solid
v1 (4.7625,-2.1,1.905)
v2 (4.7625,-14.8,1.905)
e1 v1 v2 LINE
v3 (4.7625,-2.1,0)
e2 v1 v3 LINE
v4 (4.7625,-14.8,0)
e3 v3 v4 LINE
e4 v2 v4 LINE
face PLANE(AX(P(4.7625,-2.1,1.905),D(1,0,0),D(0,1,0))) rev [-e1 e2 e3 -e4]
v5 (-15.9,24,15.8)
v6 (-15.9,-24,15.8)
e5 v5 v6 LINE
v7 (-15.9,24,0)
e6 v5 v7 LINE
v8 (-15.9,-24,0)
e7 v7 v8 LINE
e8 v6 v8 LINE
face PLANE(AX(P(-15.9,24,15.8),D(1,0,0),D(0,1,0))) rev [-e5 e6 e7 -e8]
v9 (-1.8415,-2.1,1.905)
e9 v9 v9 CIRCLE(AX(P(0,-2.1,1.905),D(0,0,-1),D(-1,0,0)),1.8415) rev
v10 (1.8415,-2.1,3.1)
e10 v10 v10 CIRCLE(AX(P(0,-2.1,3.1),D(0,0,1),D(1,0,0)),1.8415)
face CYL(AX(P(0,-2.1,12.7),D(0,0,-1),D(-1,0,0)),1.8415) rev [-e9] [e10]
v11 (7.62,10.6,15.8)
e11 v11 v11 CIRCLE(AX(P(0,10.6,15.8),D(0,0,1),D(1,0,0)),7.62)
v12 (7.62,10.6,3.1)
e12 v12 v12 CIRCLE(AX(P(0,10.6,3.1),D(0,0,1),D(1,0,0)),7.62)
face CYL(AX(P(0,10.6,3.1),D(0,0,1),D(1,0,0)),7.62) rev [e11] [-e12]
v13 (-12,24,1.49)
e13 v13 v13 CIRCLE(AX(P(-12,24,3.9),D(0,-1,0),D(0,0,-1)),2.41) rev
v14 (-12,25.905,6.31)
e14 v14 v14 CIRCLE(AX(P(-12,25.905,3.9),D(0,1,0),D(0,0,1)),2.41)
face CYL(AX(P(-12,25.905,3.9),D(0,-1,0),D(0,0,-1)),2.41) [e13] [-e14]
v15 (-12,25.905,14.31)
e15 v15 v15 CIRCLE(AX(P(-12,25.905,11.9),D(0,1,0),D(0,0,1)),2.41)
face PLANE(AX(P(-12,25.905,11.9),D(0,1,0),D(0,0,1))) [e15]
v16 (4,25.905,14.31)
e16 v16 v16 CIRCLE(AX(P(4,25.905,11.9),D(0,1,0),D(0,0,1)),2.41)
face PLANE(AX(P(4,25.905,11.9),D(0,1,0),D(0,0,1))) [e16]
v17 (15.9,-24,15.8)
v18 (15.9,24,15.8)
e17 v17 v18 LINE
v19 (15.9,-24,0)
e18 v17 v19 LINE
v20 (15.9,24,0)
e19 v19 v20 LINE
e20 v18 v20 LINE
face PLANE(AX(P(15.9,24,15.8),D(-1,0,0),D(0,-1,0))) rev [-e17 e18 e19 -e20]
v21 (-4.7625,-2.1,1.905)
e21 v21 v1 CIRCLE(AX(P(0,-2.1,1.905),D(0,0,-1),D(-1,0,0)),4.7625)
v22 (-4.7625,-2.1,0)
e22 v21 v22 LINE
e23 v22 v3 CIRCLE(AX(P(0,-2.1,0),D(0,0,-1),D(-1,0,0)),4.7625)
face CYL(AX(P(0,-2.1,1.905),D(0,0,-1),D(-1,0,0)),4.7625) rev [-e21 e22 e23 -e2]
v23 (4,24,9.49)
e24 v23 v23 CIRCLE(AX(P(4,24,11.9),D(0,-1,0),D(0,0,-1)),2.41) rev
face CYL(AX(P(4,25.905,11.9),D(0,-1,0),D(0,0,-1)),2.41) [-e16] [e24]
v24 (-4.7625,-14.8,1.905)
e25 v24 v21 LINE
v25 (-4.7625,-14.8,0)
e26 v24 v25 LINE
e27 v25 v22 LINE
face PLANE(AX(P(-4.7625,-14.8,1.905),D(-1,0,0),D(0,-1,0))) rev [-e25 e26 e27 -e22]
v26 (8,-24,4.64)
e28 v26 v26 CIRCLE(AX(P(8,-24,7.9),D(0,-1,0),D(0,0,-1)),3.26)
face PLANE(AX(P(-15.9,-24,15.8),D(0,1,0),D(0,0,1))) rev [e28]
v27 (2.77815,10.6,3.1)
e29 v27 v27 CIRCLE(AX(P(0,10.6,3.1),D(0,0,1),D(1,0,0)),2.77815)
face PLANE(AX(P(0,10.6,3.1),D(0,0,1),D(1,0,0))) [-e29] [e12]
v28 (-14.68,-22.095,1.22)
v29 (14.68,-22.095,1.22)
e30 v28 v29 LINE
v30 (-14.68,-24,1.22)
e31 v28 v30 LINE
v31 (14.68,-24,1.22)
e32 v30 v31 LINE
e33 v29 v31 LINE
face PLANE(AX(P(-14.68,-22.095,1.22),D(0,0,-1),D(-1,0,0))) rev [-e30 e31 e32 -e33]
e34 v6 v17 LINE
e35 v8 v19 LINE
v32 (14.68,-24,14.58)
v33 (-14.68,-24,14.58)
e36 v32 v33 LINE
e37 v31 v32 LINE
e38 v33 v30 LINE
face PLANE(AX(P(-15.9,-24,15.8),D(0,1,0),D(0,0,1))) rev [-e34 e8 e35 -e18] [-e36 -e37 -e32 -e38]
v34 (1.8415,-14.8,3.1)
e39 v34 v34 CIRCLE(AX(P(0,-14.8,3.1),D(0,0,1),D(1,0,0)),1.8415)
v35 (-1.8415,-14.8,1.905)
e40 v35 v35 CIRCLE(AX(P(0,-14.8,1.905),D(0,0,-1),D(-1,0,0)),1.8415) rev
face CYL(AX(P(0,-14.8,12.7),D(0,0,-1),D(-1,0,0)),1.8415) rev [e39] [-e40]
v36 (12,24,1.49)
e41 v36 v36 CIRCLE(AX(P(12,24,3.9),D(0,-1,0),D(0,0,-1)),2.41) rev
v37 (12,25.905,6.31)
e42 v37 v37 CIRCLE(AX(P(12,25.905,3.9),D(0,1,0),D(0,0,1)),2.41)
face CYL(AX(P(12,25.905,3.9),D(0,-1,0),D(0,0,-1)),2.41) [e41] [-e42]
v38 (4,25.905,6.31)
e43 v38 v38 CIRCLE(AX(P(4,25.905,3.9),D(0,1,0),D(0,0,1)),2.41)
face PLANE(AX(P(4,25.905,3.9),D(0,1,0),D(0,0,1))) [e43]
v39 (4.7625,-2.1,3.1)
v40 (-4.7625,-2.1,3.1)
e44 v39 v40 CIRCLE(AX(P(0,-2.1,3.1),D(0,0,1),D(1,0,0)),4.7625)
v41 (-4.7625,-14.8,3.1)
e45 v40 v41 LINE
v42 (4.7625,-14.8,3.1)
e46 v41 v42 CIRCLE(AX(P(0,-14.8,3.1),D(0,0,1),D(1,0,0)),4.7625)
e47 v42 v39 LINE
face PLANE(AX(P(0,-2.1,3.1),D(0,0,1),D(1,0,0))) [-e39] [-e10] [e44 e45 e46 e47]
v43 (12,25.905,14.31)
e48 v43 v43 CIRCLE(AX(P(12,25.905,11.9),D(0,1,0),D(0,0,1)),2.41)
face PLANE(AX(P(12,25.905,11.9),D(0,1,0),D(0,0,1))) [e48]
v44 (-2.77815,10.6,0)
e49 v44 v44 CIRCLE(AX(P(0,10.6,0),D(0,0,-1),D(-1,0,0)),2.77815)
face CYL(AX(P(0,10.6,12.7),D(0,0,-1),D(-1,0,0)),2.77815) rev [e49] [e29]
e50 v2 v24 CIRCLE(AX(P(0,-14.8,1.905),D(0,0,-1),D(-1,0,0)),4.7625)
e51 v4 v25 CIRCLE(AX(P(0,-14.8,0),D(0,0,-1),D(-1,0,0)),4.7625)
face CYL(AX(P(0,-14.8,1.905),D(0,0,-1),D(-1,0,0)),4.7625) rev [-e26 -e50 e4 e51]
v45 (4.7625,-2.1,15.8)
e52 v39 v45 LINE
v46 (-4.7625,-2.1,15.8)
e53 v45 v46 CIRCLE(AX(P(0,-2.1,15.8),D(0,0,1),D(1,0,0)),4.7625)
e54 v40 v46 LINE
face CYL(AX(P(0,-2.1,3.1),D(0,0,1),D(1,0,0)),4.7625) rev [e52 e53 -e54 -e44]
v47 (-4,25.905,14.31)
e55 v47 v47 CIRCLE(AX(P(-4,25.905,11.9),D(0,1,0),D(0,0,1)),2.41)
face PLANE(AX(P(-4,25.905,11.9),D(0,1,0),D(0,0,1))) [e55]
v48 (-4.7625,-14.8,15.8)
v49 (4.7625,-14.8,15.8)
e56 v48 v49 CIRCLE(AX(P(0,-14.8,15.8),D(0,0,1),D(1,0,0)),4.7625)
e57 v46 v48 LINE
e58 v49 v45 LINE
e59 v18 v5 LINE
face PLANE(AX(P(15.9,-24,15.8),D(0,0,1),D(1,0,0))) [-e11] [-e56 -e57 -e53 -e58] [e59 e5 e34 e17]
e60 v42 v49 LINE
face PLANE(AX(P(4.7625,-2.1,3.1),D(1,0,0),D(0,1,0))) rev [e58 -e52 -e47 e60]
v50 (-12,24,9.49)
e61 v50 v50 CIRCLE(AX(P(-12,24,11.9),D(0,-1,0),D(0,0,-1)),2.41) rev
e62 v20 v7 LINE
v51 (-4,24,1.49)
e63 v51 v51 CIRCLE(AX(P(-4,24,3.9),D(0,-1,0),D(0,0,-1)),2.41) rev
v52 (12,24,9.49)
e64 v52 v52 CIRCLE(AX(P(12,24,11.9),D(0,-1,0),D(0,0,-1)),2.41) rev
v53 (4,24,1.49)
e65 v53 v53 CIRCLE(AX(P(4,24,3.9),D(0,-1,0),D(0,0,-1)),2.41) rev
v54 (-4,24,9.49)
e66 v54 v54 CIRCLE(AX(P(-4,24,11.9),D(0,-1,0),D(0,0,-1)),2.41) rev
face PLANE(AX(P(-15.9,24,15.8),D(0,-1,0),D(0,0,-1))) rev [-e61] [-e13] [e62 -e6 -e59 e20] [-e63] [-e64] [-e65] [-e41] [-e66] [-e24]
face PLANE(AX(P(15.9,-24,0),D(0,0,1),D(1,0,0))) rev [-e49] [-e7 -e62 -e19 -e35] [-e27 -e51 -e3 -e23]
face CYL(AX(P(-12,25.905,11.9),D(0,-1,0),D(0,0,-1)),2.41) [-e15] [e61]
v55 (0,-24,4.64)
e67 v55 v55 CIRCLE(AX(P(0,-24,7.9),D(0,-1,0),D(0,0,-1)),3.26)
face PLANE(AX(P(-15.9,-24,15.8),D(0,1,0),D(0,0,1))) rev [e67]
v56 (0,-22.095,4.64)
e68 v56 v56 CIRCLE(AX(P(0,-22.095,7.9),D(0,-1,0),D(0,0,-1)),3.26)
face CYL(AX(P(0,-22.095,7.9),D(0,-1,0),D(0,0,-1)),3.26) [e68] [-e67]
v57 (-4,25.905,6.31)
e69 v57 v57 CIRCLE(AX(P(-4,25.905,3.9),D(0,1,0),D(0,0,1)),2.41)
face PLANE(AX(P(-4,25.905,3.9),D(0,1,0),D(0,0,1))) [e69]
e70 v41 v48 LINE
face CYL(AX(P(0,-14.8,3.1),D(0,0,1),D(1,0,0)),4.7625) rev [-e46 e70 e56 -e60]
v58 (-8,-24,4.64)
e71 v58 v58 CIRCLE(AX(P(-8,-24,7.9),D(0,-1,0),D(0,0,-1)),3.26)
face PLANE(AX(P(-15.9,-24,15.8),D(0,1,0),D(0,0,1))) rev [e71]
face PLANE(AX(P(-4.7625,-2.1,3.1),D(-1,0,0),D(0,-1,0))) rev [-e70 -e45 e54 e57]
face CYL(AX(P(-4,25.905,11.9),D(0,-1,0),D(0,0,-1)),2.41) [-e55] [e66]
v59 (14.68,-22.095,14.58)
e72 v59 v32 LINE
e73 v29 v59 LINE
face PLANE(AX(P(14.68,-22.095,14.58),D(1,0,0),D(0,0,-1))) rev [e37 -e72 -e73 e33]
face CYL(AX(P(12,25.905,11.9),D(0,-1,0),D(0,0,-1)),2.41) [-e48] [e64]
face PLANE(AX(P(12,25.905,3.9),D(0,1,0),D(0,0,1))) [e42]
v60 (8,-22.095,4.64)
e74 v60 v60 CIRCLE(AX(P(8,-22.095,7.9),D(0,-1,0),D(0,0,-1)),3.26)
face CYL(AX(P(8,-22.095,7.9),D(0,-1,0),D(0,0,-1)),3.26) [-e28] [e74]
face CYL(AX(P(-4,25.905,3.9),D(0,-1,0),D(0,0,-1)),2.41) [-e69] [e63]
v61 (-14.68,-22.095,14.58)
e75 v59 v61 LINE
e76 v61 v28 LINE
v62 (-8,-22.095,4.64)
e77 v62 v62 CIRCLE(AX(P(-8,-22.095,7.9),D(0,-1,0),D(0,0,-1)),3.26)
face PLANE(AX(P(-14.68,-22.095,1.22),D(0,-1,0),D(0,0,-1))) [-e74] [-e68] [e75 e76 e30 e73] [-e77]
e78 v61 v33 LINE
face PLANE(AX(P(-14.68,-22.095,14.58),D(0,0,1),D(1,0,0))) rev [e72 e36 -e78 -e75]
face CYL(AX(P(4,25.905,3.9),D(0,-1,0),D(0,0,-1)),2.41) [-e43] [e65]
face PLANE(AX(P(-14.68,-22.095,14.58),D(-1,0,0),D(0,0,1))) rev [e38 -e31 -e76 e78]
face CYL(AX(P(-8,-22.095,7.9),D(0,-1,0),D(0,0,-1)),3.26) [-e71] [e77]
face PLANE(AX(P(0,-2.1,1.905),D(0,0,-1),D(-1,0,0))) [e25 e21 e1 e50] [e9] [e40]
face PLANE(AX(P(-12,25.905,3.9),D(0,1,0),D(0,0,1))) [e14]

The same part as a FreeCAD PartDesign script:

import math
import FreeCAD as App
import Part
import Sketcher

V = App.Vector
Q = App.Units.Quantity

doc = App.newDocument("Part")
body = doc.addObject("PartDesign::Body", "Body")

# Sketch on XY plane
sketch1 = doc.addObject("Sketcher::SketchObject", "Sketch")
body.addObject(sketch1)
sketch1.AttachmentSupport = (doc.XY_Plane, [""])
sketch1.MapMode = "FlatFace"
sketch1.addGeometry([
    Part.LineSegment(V(-15.9, 24, 0), V(-15.9, -24, 0)),
    Part.LineSegment(V(-15.9, -24, 0), V(15.9, -24, 0)),
    Part.LineSegment(V(15.9, -24, 0), V(15.9, 24, 0)),
    Part.LineSegment(V(15.9, 24, 0), V(-15.9, 24, 0)),
], False)
sketch1.addConstraint([
    Sketcher.Constraint("Coincident", 0, 2, 1, 1),
    Sketcher.Constraint("Coincident", 1, 2, 2, 1),
    Sketcher.Constraint("Coincident", 2, 2, 3, 1),
    Sketcher.Constraint("Coincident", 3, 2, 0, 1),
    Sketcher.Constraint("Vertical", 0),
    Sketcher.Constraint("Horizontal", 1),
    Sketcher.Constraint("Vertical", 2),
    Sketcher.Constraint("Horizontal", 3),
    Sketcher.Constraint("Symmetric", 0, 2, 2, 2, -1, 1),
    Sketcher.Constraint("DistanceX", 1, 1, 1, 2, 31.8),
    Sketcher.Constraint("DistanceY", 0, 2, 0, 1, 48.0),
])
pad1 = doc.addObject("PartDesign::Pad", "Pad")
body.addObject(pad1)
pad1.Profile = sketch1
pad1.Length = 15.8

# Sketch on XY plane
sketch2 = doc.addObject("Sketcher::SketchObject", "Sketch001")
body.addObject(sketch2)
sketch2.AttachmentSupport = (doc.XY_Plane, [""])
sketch2.MapMode = "FlatFace"
sketch2.AttachmentOffset = App.Placement(V(0, 0, 15.8), App.Rotation())
sketch2.addGeometry([
    Part.Circle(V(0, 10.6, 0), V(0, 0, 1), 7.62),  # 0
    Part.LineSegment(V(4.7625, -14.8, 0), V(4.7625, -2.1, 0)),  # 1
    Part.ArcOfCircle(Part.Circle(V(0, -2.1, 0), V(0, 0, 1), 4.7625), math.radians(0), math.radians(180)),  # 2
    Part.LineSegment(V(-4.7625, -2.1, 0), V(-4.7625, -14.8, 0)),  # 3
    Part.ArcOfCircle(Part.Circle(V(0, -14.8, 0), V(0, 0, 1), 4.7625), math.radians(180), math.radians(360)),  # 4
], False)
sketch2.addConstraint([
    Sketcher.Constraint("Tangent", 1, 2, 2, 1),
    Sketcher.Constraint("Tangent", 2, 2, 3, 1),
    Sketcher.Constraint("Tangent", 3, 2, 4, 1),
    Sketcher.Constraint("Tangent", 4, 2, 1, 1),
    Sketcher.Constraint("Vertical", 1),
    Sketcher.Constraint("Vertical", 3),
    Sketcher.Constraint("PointOnObject", 0, 3, -2),
    Sketcher.Constraint("PointOnObject", 2, 3, -2),
    Sketcher.Constraint("Diameter", 0, Q("0.6 in")),
    Sketcher.Constraint("DistanceY", 1, 1, 1, 2, Q("0.5 in")),
    Sketcher.Constraint("Radius", 2, Q("0.1875 in")),
    Sketcher.Constraint("DistanceY", 4, 3, 0, 3, Q("1 in")),
    Sketcher.Constraint("DistanceY", -1, 1, 0, 3, 10.6),
])
pocket1 = doc.addObject("PartDesign::Pocket", "Pocket")
body.addObject(pocket1)
pocket1.Profile = sketch2
pocket1.Length = Q("0.5 in")

# Sketch on XY plane
sketch3 = doc.addObject("Sketcher::SketchObject", "Sketch002")
body.addObject(sketch3)
sketch3.AttachmentSupport = (doc.XY_Plane, [""])
sketch3.MapMode = "FlatFace"
sketch3.addGeometry([
    Part.Circle(V(0, 10.6, 0), V(0, 0, 1), 2.77815),
    Part.Circle(V(0, -2.1, 0), V(0, 0, 1), 1.8415),
    Part.Circle(V(0, -14.8, 0), V(0, 0, 1), 1.8415),
], False)
sketch3.addConstraint([
    Sketcher.Constraint("Equal", 1, 2),
    Sketcher.Constraint("PointOnObject", 0, 3, -2),
    Sketcher.Constraint("PointOnObject", 1, 3, -2),
    Sketcher.Constraint("PointOnObject", 2, 3, -2),
    Sketcher.Constraint("Diameter", 1, Q("0.145 in")),
    Sketcher.Constraint("DistanceY", 2, 3, 0, 3, Q("1 in")),
    Sketcher.Constraint("DistanceY", 1, 3, 0, 3, Q("0.5 in")),
    Sketcher.Constraint("Diameter", 0, 5.5563),
    Sketcher.Constraint("DistanceY", -1, 1, 0, 3, 10.6),
])
pocket2 = doc.addObject("PartDesign::Pocket", "Pocket001")
body.addObject(pocket2)
pocket2.Profile = sketch3
pocket2.Length = Q("0.5 in")
pocket2.Reversed = True

# Sketch on XY plane
sketch4 = doc.addObject("Sketcher::SketchObject", "Sketch003")
body.addObject(sketch4)
sketch4.AttachmentSupport = (doc.XY_Plane, [""])
sketch4.MapMode = "FlatFace"
sketch4.addGeometry([
    Part.LineSegment(V(-4.7625, -14.8, 0), V(-4.7625, -2.1, 0)),
    Part.ArcOfCircle(Part.Circle(V(0, -2.1, 0), V(0, 0, 1), 4.7625), math.radians(0), math.radians(180)),
    Part.LineSegment(V(4.7625, -2.1, 0), V(4.7625, -14.8, 0)),
    Part.ArcOfCircle(Part.Circle(V(0, -14.8, 0), V(0, 0, 1), 4.7625), math.radians(180), math.radians(360)),
], False)
sketch4.addConstraint([
    Sketcher.Constraint("Tangent", 0, 2, 1, 2),
    Sketcher.Constraint("Tangent", 1, 1, 2, 1),
    Sketcher.Constraint("Tangent", 2, 2, 3, 2),
    Sketcher.Constraint("Tangent", 3, 1, 0, 1),
    Sketcher.Constraint("Vertical", 0),
    Sketcher.Constraint("Vertical", 2),
    Sketcher.Constraint("PointOnObject", 1, 3, -2),
    Sketcher.Constraint("DistanceY", 0, 1, 0, 2, Q("0.5 in")),
    Sketcher.Constraint("Radius", 1, Q("0.1875 in")),
    Sketcher.Constraint("DistanceY", 1, 3, -1, 1, 2.1),
])
pocket3 = doc.addObject("PartDesign::Pocket", "Pocket002")
body.addObject(pocket3)
pocket3.Profile = sketch4
pocket3.Length = Q("0.075 in")
pocket3.Reversed = True

# Sketch on XZ plane
sketch5 = doc.addObject("Sketcher::SketchObject", "Sketch004")
body.addObject(sketch5)
sketch5.AttachmentSupport = (doc.XZ_Plane, [""])
sketch5.MapMode = "FlatFace"
sketch5.AttachmentOffset = App.Placement(V(0, 0, -24), App.Rotation())
sketch5.addGeometry([
    Part.Circle(V(-12, 3.9, 0), V(0, 0, 1), 2.41),  # 0
    Part.Circle(V(-12, 11.9, 0), V(0, 0, 1), 2.41),  # 1
    Part.Circle(V(-4, 3.9, 0), V(0, 0, 1), 2.41),  # 2
    Part.Circle(V(-4, 11.9, 0), V(0, 0, 1), 2.41),  # 3
    Part.Circle(V(4, 3.9, 0), V(0, 0, 1), 2.41),  # 4
    Part.Circle(V(4, 11.9, 0), V(0, 0, 1), 2.41),  # 5
    Part.Circle(V(12, 3.9, 0), V(0, 0, 1), 2.41),  # 6
    Part.Circle(V(12, 11.9, 0), V(0, 0, 1), 2.41),  # 7
], False)
sketch5.addConstraint([
    Sketcher.Constraint("Equal", 0, 1),
    Sketcher.Constraint("Equal", 1, 2),
    Sketcher.Constraint("Equal", 2, 3),
    Sketcher.Constraint("Equal", 3, 4),
    Sketcher.Constraint("Equal", 4, 5),
    Sketcher.Constraint("Equal", 5, 6),
    Sketcher.Constraint("Equal", 6, 7),
    Sketcher.Constraint("Symmetric", 2, 3, 4, 3, -2),
    Sketcher.Constraint("Symmetric", 3, 3, 5, 3, -2),
    Sketcher.Constraint("Symmetric", 0, 3, 6, 3, -2),
    Sketcher.Constraint("Symmetric", 1, 3, 7, 3, -2),
    Sketcher.Constraint("Horizontal", 0, 3, 2, 3),
    Sketcher.Constraint("Horizontal", 1, 3, 3, 3),
    Sketcher.Constraint("Vertical", 0, 3, 1, 3),
    Sketcher.Constraint("Vertical", 2, 3, 3, 3),
    Sketcher.Constraint("Diameter", 0, 4.82),
    Sketcher.Constraint("DistanceX", 0, 3, -1, 1, 12.0),
    Sketcher.Constraint("DistanceY", -1, 1, 0, 3, 3.9),
    Sketcher.Constraint("DistanceY", -1, 1, 1, 3, 11.9),
    Sketcher.Constraint("DistanceX", 2, 3, -1, 1, 4.0),
])
pad2 = doc.addObject("PartDesign::Pad", "Pad001")
body.addObject(pad2)
pad2.Profile = sketch5
pad2.Length = Q("0.075 in")
pad2.Reversed = True

# Sketch on XZ plane
sketch6 = doc.addObject("Sketcher::SketchObject", "Sketch005")
body.addObject(sketch6)
sketch6.AttachmentSupport = (doc.XZ_Plane, [""])
sketch6.MapMode = "FlatFace"
sketch6.AttachmentOffset = App.Placement(V(0, 0, 24), App.Rotation())
sketch6.addGeometry([
    Part.LineSegment(V(-14.68, 14.58, 0), V(-14.68, 1.22, 0)),  # 0
    Part.LineSegment(V(-14.68, 1.22, 0), V(14.68, 1.22, 0)),  # 1
    Part.LineSegment(V(14.68, 1.22, 0), V(14.68, 14.58, 0)),  # 2
    Part.LineSegment(V(14.68, 14.58, 0), V(-14.68, 14.58, 0)),  # 3
    Part.Circle(V(-8, 7.9, 0), V(0, 0, 1), 3.26),  # 4
    Part.Circle(V(0, 7.9, 0), V(0, 0, 1), 3.26),  # 5
    Part.Circle(V(8, 7.9, 0), V(0, 0, 1), 3.26),  # 6
], False)
sketch6.addConstraint([
    Sketcher.Constraint("Coincident", 0, 2, 1, 1),
    Sketcher.Constraint("Coincident", 1, 2, 2, 1),
    Sketcher.Constraint("Coincident", 2, 2, 3, 1),
    Sketcher.Constraint("Coincident", 3, 2, 0, 1),
    Sketcher.Constraint("Vertical", 0),
    Sketcher.Constraint("Horizontal", 1),
    Sketcher.Constraint("Vertical", 2),
    Sketcher.Constraint("Horizontal", 3),
    Sketcher.Constraint("Equal", 4, 5),
    Sketcher.Constraint("Equal", 5, 6),
    Sketcher.Constraint("Symmetric", 4, 3, 6, 3, -2),
    Sketcher.Constraint("PointOnObject", 5, 3, -2),
    Sketcher.Constraint("Horizontal", 4, 3, 5, 3),
    Sketcher.Constraint("Diameter", 4, 6.52),
    Sketcher.Constraint("DistanceX", 1, 1, 1, 2, 29.36),
    Sketcher.Constraint("DistanceY", 0, 2, 0, 1, 13.36),
    Sketcher.Constraint("DistanceX", 4, 3, -1, 1, 8.0),
    Sketcher.Constraint("DistanceY", -1, 1, 4, 3, 7.9),
    Sketcher.Constraint("DistanceX", 0, 2, -1, 1, 14.68),
    Sketcher.Constraint("DistanceY", -1, 1, 0, 2, 1.22),
])
pocket4 = doc.addObject("PartDesign::Pocket", "Pocket003")
body.addObject(pocket4)
pocket4.Profile = sketch6
pocket4.Length = Q("0.075 in")

doc.recompute()
